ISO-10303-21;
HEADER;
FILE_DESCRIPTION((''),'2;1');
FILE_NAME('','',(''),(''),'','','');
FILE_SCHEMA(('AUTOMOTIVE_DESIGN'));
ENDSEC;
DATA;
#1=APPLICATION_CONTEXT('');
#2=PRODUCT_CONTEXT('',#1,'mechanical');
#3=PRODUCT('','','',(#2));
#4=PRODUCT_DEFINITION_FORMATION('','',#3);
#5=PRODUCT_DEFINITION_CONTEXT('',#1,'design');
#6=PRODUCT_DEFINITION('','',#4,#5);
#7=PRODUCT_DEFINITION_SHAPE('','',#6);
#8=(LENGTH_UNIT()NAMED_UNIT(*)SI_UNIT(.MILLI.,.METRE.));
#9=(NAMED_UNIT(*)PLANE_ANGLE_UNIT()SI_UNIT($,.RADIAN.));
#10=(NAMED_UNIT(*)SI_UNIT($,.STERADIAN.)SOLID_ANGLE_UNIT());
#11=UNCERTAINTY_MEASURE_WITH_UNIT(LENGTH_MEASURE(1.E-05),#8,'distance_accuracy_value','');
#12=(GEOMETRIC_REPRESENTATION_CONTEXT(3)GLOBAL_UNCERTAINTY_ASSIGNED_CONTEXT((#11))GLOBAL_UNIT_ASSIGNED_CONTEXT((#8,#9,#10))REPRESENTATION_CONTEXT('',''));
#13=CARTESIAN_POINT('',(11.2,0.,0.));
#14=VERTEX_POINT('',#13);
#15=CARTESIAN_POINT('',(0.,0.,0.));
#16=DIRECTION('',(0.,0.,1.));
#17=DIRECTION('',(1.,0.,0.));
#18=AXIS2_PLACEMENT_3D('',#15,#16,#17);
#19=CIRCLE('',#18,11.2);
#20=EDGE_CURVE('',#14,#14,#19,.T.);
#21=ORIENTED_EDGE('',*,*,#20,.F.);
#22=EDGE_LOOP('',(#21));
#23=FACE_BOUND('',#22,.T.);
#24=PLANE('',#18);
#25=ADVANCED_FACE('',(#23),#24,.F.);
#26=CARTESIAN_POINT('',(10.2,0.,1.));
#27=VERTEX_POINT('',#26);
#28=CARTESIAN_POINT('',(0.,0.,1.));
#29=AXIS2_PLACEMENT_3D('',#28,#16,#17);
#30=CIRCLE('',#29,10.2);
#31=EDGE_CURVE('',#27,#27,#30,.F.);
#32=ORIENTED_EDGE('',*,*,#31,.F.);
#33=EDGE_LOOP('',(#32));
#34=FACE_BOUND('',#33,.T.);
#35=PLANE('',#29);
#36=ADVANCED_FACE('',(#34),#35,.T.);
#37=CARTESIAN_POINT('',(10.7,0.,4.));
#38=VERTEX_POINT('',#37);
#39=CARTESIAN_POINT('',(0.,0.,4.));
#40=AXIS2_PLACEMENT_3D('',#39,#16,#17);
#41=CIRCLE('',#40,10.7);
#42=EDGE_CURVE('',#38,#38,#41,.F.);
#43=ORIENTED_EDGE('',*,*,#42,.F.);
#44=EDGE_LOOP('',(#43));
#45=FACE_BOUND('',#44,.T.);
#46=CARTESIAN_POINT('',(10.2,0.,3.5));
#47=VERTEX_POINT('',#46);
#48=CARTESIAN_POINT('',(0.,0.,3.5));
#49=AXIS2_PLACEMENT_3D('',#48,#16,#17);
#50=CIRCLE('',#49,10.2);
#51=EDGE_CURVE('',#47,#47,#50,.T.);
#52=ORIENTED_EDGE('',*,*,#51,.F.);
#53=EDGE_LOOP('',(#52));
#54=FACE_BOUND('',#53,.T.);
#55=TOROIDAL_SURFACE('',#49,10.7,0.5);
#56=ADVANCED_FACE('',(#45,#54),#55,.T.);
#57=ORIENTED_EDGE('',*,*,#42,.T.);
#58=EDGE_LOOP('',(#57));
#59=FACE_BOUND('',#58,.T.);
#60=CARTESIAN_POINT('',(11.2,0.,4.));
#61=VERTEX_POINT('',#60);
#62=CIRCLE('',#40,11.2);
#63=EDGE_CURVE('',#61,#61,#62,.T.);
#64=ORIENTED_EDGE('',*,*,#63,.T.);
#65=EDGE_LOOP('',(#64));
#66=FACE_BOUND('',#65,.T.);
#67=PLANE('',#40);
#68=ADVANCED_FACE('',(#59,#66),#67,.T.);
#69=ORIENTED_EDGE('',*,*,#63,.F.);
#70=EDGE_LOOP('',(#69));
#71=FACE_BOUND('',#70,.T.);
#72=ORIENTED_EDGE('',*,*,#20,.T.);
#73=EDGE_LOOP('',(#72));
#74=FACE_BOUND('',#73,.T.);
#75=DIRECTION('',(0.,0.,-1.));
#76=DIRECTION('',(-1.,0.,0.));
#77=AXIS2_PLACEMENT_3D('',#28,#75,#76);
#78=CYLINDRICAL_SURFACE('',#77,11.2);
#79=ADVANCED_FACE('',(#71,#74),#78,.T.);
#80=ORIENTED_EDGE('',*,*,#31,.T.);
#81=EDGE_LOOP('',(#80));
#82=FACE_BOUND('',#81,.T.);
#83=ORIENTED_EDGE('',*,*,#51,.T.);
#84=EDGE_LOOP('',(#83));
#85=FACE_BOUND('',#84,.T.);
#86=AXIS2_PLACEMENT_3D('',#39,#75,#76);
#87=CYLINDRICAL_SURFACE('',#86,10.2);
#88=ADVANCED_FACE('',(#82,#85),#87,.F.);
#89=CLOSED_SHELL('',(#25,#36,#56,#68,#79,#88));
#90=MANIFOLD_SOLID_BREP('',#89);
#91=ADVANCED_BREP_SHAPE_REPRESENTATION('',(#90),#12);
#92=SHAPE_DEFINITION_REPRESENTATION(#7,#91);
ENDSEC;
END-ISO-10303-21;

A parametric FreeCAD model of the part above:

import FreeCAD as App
import Part
import Sketcher

V = App.Vector


def edges_at(feature, points):
    """Names of the edges that pass closest to the given points."""
    edges = feature.Shape.Edges
    near = lambda p: min(range(len(edges)), key=lambda i: edges[i].distToShape(Part.Vertex(*p))[0])
    return sorted({f"Edge{near(p) + 1}" for p in points})

doc = App.newDocument("Part")
params = doc.addObject("Spreadsheet::Sheet", "Params")
for row, (alias, value) in enumerate([
    ("sketch1_diameter", "22.4 mm"),
    ("pad1_length", "1 mm"),
    ("sketch2_diameter", "22.4 mm"),
    ("sketch2_diameter2", "20.4 mm"),
    ("pad2_length", "3 mm"),
    ("fillet_radius", "0.5 mm"),
], start=1):
    params.set(f"A{row}", alias)
    params.set(f"B{row}", "=" + value)
    params.setAlias(f"B{row}", alias)

body = doc.addObject("PartDesign::Body", "Body")

sketch1 = doc.addObject("Sketcher::SketchObject", "Sketch")
body.addObject(sketch1)
sketch1.AttachmentSupport = (doc.XY_Plane, [""])
sketch1.MapMode = "FlatFace"
sketch1.addGeometry(Part.Circle(V(0, 0, 0), V(0, 0, 1), 11.2), False)
sketch1.addConstraint([
    Sketcher.Constraint("Coincident", 0, 3, -1, 1),
    Sketcher.Constraint("Diameter", 0, 22.4),
])
sketch1.setExpression("Constraints[1]", "Params.sketch1_diameter")
pad1 = doc.addObject("PartDesign::Pad", "Pad")
body.addObject(pad1)
pad1.Profile = sketch1
pad1.setExpression("Length", "Params.pad1_length")

sketch2 = doc.addObject("Sketcher::SketchObject", "Sketch001")
body.addObject(sketch2)
sketch2.AttachmentSupport = (doc.XY_Plane, [""])
sketch2.MapMode = "FlatFace"
sketch2.AttachmentOffset = App.Placement(V(0, 0, 1), App.Rotation())
sketch2.addGeometry([
    Part.Circle(V(0, 0, 0), V(0, 0, 1), 11.2),
    Part.Circle(V(0, 0, 0), V(0, 0, 1), 10.2),
], False)
sketch2.addConstraint([
    Sketcher.Constraint("Coincident", 0, 3, -1, 1),
    Sketcher.Constraint("Coincident", 1, 3, -1, 1),
    Sketcher.Constraint("Diameter", 0, 22.4),
    Sketcher.Constraint("Diameter", 1, 20.4),
])
sketch2.setExpression("Constraints[2]", "Params.sketch2_diameter")
sketch2.setExpression("Constraints[3]", "Params.sketch2_diameter2")
pad2 = doc.addObject("PartDesign::Pad", "Pad001")
body.addObject(pad2)
pad2.Profile = sketch2
pad2.setExpression("Length", "Params.pad2_length")
doc.recompute()

fillet = doc.addObject("PartDesign::Fillet", "Fillet")
body.addObject(fillet)
fillet.Base = (pad2, edges_at(pad2, [(-10.2, 0, 4)]))
fillet.setExpression("Radius", "Params.fillet_radius")

doc.recompute()
